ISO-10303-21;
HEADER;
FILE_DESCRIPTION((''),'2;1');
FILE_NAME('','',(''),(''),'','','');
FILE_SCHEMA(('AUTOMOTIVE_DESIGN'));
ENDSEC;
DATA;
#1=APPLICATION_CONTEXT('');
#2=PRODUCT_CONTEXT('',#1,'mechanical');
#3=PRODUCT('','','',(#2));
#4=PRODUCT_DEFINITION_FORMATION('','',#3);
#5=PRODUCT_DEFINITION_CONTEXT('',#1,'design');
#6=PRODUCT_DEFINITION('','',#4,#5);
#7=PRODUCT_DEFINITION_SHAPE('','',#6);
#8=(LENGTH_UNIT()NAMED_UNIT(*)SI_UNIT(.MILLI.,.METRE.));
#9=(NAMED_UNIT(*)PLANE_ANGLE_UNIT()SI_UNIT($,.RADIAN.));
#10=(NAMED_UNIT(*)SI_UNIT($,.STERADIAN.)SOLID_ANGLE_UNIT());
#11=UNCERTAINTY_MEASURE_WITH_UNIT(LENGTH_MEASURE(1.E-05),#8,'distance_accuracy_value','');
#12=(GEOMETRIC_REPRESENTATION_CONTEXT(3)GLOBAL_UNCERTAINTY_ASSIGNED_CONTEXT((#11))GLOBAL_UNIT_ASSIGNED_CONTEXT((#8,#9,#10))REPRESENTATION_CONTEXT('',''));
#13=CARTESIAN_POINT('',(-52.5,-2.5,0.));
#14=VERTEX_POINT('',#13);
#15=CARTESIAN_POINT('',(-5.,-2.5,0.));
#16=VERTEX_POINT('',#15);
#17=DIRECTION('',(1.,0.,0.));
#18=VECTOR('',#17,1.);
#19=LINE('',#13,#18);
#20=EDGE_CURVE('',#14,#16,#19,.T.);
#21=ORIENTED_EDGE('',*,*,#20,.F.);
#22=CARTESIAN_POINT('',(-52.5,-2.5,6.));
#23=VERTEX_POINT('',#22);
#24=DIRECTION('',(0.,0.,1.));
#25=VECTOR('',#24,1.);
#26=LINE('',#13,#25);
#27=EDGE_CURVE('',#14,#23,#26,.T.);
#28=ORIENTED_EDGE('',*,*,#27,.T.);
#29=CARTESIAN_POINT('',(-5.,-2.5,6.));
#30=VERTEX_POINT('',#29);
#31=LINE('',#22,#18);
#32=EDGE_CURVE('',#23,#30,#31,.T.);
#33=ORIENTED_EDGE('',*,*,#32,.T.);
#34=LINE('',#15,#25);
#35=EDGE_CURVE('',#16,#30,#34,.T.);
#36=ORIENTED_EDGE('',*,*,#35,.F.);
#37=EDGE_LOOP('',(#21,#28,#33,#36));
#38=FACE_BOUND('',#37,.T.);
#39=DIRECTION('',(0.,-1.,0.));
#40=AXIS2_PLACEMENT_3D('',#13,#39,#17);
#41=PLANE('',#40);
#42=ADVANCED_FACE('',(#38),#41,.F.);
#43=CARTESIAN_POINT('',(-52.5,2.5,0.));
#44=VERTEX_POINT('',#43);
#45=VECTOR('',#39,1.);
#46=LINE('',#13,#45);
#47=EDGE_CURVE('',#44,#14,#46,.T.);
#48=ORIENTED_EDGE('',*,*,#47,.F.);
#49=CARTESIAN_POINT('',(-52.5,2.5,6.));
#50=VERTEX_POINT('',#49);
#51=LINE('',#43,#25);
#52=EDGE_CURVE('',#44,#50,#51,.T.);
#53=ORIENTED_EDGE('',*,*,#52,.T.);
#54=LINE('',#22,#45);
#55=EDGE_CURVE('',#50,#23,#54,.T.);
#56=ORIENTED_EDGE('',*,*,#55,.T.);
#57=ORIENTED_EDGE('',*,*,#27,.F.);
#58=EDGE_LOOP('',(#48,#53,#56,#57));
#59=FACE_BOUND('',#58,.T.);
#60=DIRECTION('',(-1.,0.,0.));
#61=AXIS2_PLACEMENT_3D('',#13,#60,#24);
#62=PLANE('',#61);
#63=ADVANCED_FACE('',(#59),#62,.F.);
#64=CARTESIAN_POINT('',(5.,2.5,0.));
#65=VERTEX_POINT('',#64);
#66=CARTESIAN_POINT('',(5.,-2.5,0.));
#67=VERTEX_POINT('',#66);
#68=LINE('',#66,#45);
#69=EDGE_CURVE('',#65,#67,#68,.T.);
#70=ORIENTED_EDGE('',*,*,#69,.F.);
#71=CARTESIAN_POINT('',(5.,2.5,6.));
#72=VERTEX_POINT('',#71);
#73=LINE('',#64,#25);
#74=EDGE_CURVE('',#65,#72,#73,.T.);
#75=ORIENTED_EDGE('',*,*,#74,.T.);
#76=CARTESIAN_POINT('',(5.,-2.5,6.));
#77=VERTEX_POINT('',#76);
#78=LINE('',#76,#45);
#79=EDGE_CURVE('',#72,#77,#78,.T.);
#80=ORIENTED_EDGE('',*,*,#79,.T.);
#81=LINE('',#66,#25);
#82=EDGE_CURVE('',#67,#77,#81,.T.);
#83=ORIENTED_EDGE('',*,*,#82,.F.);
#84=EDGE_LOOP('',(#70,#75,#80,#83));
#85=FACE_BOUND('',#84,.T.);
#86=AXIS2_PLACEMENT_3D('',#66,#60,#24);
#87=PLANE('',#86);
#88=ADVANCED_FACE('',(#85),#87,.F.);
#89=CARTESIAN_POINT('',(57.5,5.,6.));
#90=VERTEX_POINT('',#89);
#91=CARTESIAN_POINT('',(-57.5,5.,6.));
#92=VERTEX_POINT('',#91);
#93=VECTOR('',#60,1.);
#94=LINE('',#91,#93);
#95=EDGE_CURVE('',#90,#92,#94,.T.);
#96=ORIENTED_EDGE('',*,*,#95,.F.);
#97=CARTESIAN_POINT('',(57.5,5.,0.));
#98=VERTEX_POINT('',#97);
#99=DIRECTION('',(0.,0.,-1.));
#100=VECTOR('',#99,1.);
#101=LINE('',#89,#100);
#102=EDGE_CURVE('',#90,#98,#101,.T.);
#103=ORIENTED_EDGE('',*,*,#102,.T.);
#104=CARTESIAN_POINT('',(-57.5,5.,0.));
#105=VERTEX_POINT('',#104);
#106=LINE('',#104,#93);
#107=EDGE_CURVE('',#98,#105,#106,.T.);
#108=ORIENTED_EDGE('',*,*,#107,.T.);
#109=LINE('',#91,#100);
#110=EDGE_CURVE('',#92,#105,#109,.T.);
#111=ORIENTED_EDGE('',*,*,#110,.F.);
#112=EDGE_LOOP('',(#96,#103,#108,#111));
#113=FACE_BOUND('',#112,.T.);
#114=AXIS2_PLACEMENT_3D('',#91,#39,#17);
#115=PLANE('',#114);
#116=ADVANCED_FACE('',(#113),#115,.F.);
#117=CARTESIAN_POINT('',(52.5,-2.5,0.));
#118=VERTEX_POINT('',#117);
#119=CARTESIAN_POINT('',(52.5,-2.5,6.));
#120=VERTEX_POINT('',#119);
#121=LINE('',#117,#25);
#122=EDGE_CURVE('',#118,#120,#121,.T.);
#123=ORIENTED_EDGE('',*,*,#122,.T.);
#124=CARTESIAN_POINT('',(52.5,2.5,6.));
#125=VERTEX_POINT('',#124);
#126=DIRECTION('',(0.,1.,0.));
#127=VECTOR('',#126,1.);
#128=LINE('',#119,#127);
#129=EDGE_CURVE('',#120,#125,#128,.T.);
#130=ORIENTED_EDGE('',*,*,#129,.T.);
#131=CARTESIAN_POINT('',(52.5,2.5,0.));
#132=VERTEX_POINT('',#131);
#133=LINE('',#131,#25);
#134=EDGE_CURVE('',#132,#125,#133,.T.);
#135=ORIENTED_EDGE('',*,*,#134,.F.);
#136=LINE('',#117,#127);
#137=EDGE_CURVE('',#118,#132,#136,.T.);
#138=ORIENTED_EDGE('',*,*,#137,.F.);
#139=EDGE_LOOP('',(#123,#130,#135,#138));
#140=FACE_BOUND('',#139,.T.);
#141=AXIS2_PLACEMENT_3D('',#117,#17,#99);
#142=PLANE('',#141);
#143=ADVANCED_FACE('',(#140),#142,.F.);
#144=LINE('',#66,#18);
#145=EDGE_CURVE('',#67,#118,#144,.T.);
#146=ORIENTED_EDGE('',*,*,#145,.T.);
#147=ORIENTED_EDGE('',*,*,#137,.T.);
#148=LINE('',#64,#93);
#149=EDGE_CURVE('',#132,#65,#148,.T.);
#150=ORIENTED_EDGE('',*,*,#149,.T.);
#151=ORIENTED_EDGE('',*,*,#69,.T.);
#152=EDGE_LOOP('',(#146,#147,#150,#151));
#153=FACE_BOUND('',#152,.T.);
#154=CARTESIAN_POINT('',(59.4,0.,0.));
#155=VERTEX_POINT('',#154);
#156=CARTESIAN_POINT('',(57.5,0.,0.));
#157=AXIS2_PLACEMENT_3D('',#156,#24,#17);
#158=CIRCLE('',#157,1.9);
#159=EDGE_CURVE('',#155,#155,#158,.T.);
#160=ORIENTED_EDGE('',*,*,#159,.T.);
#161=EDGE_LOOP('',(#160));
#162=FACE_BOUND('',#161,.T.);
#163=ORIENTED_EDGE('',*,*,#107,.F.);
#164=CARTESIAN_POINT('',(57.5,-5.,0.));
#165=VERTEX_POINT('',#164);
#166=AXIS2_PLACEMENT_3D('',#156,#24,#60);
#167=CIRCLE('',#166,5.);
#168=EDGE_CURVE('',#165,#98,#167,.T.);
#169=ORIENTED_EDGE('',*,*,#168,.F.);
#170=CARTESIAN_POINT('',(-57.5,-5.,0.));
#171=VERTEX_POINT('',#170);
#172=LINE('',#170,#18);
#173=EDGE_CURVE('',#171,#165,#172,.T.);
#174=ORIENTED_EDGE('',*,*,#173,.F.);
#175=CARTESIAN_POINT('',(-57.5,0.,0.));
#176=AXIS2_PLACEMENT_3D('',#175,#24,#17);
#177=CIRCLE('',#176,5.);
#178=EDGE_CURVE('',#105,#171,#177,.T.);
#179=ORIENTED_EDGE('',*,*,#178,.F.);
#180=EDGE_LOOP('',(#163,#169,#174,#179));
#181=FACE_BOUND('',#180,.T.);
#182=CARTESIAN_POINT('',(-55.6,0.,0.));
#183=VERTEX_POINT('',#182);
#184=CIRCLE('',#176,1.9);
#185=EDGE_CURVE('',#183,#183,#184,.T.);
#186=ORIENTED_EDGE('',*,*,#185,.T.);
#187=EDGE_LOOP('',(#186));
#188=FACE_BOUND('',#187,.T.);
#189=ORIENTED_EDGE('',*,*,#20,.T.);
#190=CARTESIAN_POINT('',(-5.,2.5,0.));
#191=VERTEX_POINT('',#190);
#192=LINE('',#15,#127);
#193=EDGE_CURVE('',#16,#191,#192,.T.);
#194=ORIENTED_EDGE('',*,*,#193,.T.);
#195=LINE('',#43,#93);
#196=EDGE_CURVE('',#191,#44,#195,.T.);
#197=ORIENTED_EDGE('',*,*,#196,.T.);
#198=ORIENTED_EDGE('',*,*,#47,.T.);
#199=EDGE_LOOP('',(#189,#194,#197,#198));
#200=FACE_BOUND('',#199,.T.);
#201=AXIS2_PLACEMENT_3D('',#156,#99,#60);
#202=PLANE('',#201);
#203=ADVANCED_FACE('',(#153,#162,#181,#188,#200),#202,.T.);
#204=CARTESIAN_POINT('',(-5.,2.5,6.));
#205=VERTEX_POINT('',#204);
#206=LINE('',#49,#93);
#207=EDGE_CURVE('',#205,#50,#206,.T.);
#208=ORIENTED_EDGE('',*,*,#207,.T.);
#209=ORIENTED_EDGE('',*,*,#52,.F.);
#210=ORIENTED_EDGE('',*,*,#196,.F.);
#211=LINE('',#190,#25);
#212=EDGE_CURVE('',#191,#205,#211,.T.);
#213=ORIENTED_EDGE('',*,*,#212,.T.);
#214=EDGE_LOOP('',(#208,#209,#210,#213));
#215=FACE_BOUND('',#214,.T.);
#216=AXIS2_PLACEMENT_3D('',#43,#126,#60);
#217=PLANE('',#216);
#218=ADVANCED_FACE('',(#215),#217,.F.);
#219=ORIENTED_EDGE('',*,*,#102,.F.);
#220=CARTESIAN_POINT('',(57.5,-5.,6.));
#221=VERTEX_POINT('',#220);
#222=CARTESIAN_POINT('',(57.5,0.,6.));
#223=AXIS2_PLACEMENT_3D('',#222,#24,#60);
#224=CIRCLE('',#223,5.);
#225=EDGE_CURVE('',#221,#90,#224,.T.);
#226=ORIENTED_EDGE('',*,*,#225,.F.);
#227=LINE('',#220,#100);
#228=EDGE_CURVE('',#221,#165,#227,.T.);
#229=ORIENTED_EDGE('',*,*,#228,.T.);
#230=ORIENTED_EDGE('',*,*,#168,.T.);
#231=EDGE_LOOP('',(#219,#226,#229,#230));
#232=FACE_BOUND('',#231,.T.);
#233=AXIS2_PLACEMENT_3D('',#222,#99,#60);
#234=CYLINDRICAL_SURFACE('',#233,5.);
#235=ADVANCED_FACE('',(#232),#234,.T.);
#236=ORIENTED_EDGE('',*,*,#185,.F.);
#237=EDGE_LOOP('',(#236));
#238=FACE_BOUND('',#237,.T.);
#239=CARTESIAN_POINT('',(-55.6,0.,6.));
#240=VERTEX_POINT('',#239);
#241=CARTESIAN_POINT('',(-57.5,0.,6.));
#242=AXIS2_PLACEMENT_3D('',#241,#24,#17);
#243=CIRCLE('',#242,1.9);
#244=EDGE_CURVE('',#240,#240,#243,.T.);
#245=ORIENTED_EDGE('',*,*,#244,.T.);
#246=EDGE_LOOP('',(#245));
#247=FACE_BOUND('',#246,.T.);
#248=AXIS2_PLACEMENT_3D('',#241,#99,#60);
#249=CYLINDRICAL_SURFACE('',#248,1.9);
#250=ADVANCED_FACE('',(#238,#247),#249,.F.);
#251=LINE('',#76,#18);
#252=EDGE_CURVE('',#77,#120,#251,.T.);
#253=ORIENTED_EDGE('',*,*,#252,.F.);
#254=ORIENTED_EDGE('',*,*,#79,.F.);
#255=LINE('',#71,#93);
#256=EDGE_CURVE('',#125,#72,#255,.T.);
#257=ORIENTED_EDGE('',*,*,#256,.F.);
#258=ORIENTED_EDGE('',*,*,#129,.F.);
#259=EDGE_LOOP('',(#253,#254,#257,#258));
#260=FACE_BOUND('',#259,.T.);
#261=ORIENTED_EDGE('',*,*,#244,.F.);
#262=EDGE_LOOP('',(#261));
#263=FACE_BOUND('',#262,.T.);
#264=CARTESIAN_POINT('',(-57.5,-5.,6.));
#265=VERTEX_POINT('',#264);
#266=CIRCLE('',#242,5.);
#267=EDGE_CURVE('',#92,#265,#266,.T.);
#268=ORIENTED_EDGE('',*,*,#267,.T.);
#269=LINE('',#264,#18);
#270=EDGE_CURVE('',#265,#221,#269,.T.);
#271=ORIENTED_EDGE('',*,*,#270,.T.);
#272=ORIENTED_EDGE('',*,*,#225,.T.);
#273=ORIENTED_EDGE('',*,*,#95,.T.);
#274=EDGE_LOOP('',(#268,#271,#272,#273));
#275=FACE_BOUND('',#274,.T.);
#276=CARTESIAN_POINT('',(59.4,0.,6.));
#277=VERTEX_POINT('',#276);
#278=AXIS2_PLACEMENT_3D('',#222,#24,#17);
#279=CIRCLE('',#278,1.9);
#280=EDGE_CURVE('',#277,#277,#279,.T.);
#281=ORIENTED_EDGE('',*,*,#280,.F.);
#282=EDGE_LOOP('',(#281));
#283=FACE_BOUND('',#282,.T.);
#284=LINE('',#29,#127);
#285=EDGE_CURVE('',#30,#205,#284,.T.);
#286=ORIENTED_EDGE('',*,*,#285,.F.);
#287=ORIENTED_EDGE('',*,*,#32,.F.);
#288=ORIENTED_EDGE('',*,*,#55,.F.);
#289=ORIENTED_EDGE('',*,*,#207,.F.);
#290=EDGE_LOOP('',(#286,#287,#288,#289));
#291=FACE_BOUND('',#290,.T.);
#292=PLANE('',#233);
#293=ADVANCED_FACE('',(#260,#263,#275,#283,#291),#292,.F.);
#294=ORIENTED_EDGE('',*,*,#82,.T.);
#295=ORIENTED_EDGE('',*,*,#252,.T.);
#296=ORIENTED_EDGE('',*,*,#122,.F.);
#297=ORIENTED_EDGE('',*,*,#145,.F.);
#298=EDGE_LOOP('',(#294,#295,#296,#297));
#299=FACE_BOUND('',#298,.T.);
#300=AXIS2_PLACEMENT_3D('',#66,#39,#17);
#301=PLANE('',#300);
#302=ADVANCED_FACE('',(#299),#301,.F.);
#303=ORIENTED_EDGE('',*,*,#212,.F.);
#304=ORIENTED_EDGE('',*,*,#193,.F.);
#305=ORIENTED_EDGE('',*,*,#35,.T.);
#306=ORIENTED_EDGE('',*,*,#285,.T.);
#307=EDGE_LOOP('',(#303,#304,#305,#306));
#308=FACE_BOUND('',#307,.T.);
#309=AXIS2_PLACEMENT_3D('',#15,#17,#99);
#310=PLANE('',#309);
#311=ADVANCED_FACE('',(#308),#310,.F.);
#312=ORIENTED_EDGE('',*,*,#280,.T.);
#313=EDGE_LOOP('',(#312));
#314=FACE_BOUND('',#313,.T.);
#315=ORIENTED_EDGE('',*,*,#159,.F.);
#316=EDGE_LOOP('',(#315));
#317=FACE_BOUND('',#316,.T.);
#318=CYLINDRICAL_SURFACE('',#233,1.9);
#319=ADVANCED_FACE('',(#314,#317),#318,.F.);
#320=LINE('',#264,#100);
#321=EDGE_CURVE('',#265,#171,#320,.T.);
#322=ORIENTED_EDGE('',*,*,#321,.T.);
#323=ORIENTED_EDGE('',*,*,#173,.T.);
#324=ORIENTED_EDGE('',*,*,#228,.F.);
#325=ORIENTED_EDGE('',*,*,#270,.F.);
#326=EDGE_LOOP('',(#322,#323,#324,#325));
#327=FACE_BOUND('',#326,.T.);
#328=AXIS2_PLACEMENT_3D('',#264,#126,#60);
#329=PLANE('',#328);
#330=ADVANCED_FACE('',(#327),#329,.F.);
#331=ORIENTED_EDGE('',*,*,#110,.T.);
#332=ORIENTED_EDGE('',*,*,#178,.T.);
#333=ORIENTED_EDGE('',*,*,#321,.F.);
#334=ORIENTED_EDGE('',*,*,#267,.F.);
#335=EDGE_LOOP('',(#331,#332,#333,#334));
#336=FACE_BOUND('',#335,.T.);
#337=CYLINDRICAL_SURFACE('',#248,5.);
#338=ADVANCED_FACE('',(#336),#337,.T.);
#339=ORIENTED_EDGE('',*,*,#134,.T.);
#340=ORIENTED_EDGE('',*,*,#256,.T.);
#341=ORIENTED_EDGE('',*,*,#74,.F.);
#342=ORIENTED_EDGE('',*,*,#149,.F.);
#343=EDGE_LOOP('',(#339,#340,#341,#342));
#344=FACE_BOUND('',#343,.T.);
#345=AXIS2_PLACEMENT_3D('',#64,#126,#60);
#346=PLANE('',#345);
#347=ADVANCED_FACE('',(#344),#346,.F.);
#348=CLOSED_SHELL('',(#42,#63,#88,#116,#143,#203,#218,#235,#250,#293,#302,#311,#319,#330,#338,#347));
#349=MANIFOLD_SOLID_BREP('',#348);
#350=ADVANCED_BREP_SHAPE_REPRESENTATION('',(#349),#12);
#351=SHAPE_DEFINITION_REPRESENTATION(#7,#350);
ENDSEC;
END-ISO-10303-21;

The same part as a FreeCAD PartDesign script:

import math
import FreeCAD as App
import Part
import Sketcher

V = App.Vector


def add_polygon(sketch, points):
    """Adds a closed chain of lines whose ends are joined by coincident constraints."""
    first, n = sketch.GeometryCount, len(points)
    for a, b in zip(points, points[1:] + points[:1]):
        sketch.addGeometry(Part.LineSegment(App.Vector(*a, 0), App.Vector(*b, 0)), False)
    for i in range(n):
        sketch.addConstraint(Sketcher.Constraint("Coincident", first + i, 2, first + (i + 1) % n, 1))

doc = App.newDocument("Part")
body = doc.addObject("PartDesign::Body", "Body")

sketch1 = body.newObject("Sketcher::SketchObject", "Sketch")
sketch1.AttachmentSupport = (doc.getObject("XY_Plane"), [""])
sketch1.MapMode = "FlatFace"
sketch1.addGeometry([
    Part.LineSegment(V(57.5, 5, 0), V(-57.5, 5, 0)),
    Part.ArcOfCircle(Part.Circle(V(-57.5, 0, 0), V(0, 0, 1), 5), math.radians(90), math.radians(270)),
    Part.LineSegment(V(-57.5, -5, 0), V(57.5, -5, 0)),
    Part.ArcOfCircle(Part.Circle(V(57.5, 0, 0), V(0, 0, 1), 5), math.radians(-90), math.radians(90)),
    Part.Circle(V(57.5, 0, 0), V(0, 0, 1), 1.9),
    Part.Circle(V(-57.5, 0, 0), V(0, 0, 1), 1.9),
], False)
sketch1.addConstraint([
    Sketcher.Constraint("Tangent", 0, 2, 1, 1),
    Sketcher.Constraint("Tangent", 1, 2, 2, 1),
    Sketcher.Constraint("Tangent", 2, 2, 3, 1),
    Sketcher.Constraint("Tangent", 3, 2, 0, 1),
    Sketcher.Constraint("Horizontal", 0),
    Sketcher.Constraint("Horizontal", 2),
    Sketcher.Constraint("Coincident", 4, 3, 3, 3),
    Sketcher.Constraint("Coincident", 5, 3, 1, 3),
    Sketcher.Constraint("Equal", 4, 5),
    Sketcher.Constraint("Symmetric", 1, 3, 3, 3, -1, 1),
    Sketcher.Constraint("Radius", 1, 5.0),
    Sketcher.Constraint("Diameter", 4, 3.8),
    Sketcher.Constraint("DistanceX", 0, 2, 0, 1, 115.0),
])
pad1 = body.newObject("PartDesign::Pad", "Pad")
pad1.Profile = sketch1
pad1.Length = 6

sketch2 = body.newObject("Sketcher::SketchObject", "Sketch001")
sketch2.AttachmentSupport = (doc.getObject("XY_Plane"), [""])
sketch2.MapMode = "FlatFace"
sketch2.AttachmentOffset = App.Placement(V(0, 0, 6), App.Rotation())
add_polygon(sketch2, [(-52, 2), (-52, -2), (-5, -2), (-5, 2)])
add_polygon(sketch2, [(5, 2), (5, -2), (52, -2), (52, 2)])
sketch2.addConstraint([
    Sketcher.Constraint("Vertical", 0),
    Sketcher.Constraint("Horizontal", 1),
    Sketcher.Constraint("Vertical", 2),
    Sketcher.Constraint("Horizontal", 3),
    Sketcher.Constraint("Vertical", 4),
    Sketcher.Constraint("Horizontal", 5),
    Sketcher.Constraint("Vertical", 6),
    Sketcher.Constraint("Horizontal", 7),
    Sketcher.Constraint("Symmetric", 2, 2, 4, 2, -1, 1),
    Sketcher.Constraint("Symmetric", 0, 2, 6, 2, -1, 1),
    Sketcher.Constraint("Horizontal", 1, 2, 4, 2),
    Sketcher.Constraint("DistanceY", 0, 2, 0, 1, 5.0),
    Sketcher.Constraint("DistanceX", 1, 1, 1, 2, 47.5),
    Sketcher.Constraint("DistanceX", 1, 2, -1, 1, 5.0),
])
pocket1 = body.newObject("PartDesign::Pocket", "Pocket")
pocket1.Profile = sketch2
pocket1.Type = "ThroughAll"

doc.recompute()
